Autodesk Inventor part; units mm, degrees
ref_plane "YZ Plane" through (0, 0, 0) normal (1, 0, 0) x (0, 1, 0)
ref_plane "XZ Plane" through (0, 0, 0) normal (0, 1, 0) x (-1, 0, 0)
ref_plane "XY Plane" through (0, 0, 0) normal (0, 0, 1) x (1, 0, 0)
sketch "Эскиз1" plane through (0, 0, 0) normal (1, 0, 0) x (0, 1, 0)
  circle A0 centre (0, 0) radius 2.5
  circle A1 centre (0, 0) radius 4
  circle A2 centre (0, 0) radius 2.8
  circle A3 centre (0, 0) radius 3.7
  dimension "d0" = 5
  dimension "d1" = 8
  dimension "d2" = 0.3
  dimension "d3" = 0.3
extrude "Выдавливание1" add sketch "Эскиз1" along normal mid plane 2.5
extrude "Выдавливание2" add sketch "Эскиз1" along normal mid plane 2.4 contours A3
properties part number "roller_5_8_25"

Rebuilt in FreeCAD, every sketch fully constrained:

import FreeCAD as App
import Part
import Sketcher
Q = App.Units.Quantity

doc = App.newDocument("Part")
params = doc.addObject("Spreadsheet::Sheet", "Params")
for row, (alias, value) in enumerate([
    ("sketch1_diameter", "8 mm"),
    ("sketch1_diameter2", "5 mm"),
    ("sketch1_diameter3", "7.4 mm"),
    ("sketch1_diameter4", "5.6 mm"),
    ("pad1_length", "2.5 mm"),
    ("sketch2_diameter", "7.4 mm"),
    ("sketch2_diameter2", "5.6 mm"),
    ("pad2_length", "2.4 mm"),
], start=1):
    params.set(f"A{row}", alias)
    params.set(f"B{row}", "=" + value)
    params.setAlias(f"B{row}", alias)

body = doc.addObject("PartDesign::Body", "Body")
body.AllowCompound = True

# Sketch on YZ plane
sketch1 = doc.addObject("Sketcher::SketchObject", "Sketch")
body.addObject(sketch1)
sketch1.AttachmentSupport = (doc.YZ_Plane, [""])
sketch1.MapMode = "FlatFace"
sketch1.addGeometry(Part.Circle(App.Vector(0, 0, 0), App.Vector(0, 0, 1), 4), False)
sketch1.addGeometry(Part.Circle(App.Vector(0, 0, 0), App.Vector(0, 0, 1), 3.7), False)
sketch1.addGeometry(Part.Circle(App.Vector(0, 0, 0), App.Vector(0, 0, 1), 2.8), False)
sketch1.addGeometry(Part.Circle(App.Vector(0, 0, 0), App.Vector(0, 0, 1), 2.5), False)
sketch1.addConstraint(Sketcher.Constraint("Coincident", 0, 3, -1, 1))
sketch1.addConstraint(Sketcher.Constraint("Coincident", 1, 3, -1, 1))
sketch1.addConstraint(Sketcher.Constraint("Coincident", 2, 3, -1, 1))
sketch1.addConstraint(Sketcher.Constraint("Coincident", 3, 3, -1, 1))
sketch1.addConstraint(Sketcher.Constraint("Diameter", 0, Q("8 mm")))
sketch1.addConstraint(Sketcher.Constraint("Diameter", 3, Q("5 mm")))
sketch1.addConstraint(Sketcher.Constraint("Diameter", 1, Q("7.4 mm")))
sketch1.addConstraint(Sketcher.Constraint("Diameter", 2, Q("5.6 mm")))
sketch1.setExpression("Constraints[4]", "Params.sketch1_diameter")
sketch1.setExpression("Constraints[5]", "Params.sketch1_diameter2")
sketch1.setExpression("Constraints[6]", "Params.sketch1_diameter3")
sketch1.setExpression("Constraints[7]", "Params.sketch1_diameter4")
pad1 = doc.addObject("PartDesign::Pad", "Pad")
body.addObject(pad1)
pad1.Profile = sketch1
pad1.setExpression("Length", "Params.pad1_length")
pad1.Midplane = True

# Sketch on YZ plane
sketch2 = doc.addObject("Sketcher::SketchObject", "Sketch001")
body.addObject(sketch2)
sketch2.AttachmentSupport = (doc.YZ_Plane, [""])
sketch2.MapMode = "FlatFace"
sketch2.addGeometry(Part.Circle(App.Vector(0, 0, 0), App.Vector(0, 0, 1), 3.7), False)
sketch2.addGeometry(Part.Circle(App.Vector(0, 0, 0), App.Vector(0, 0, 1), 2.8), False)
sketch2.addConstraint(Sketcher.Constraint("Coincident", 0, 3, -1, 1))
sketch2.addConstraint(Sketcher.Constraint("Coincident", 1, 3, -1, 1))
sketch2.addConstraint(Sketcher.Constraint("Diameter", 0, Q("7.4 mm")))
sketch2.addConstraint(Sketcher.Constraint("Diameter", 1, Q("5.6 mm")))
sketch2.setExpression("Constraints[2]", "Params.sketch2_diameter")
sketch2.setExpression("Constraints[3]", "Params.sketch2_diameter2")
pad2 = doc.addObject("PartDesign::Pad", "Pad001")
body.addObject(pad2)
pad2.Profile = sketch2
pad2.setExpression("Length", "Params.pad2_length")
pad2.Midplane = True

doc.recompute()
